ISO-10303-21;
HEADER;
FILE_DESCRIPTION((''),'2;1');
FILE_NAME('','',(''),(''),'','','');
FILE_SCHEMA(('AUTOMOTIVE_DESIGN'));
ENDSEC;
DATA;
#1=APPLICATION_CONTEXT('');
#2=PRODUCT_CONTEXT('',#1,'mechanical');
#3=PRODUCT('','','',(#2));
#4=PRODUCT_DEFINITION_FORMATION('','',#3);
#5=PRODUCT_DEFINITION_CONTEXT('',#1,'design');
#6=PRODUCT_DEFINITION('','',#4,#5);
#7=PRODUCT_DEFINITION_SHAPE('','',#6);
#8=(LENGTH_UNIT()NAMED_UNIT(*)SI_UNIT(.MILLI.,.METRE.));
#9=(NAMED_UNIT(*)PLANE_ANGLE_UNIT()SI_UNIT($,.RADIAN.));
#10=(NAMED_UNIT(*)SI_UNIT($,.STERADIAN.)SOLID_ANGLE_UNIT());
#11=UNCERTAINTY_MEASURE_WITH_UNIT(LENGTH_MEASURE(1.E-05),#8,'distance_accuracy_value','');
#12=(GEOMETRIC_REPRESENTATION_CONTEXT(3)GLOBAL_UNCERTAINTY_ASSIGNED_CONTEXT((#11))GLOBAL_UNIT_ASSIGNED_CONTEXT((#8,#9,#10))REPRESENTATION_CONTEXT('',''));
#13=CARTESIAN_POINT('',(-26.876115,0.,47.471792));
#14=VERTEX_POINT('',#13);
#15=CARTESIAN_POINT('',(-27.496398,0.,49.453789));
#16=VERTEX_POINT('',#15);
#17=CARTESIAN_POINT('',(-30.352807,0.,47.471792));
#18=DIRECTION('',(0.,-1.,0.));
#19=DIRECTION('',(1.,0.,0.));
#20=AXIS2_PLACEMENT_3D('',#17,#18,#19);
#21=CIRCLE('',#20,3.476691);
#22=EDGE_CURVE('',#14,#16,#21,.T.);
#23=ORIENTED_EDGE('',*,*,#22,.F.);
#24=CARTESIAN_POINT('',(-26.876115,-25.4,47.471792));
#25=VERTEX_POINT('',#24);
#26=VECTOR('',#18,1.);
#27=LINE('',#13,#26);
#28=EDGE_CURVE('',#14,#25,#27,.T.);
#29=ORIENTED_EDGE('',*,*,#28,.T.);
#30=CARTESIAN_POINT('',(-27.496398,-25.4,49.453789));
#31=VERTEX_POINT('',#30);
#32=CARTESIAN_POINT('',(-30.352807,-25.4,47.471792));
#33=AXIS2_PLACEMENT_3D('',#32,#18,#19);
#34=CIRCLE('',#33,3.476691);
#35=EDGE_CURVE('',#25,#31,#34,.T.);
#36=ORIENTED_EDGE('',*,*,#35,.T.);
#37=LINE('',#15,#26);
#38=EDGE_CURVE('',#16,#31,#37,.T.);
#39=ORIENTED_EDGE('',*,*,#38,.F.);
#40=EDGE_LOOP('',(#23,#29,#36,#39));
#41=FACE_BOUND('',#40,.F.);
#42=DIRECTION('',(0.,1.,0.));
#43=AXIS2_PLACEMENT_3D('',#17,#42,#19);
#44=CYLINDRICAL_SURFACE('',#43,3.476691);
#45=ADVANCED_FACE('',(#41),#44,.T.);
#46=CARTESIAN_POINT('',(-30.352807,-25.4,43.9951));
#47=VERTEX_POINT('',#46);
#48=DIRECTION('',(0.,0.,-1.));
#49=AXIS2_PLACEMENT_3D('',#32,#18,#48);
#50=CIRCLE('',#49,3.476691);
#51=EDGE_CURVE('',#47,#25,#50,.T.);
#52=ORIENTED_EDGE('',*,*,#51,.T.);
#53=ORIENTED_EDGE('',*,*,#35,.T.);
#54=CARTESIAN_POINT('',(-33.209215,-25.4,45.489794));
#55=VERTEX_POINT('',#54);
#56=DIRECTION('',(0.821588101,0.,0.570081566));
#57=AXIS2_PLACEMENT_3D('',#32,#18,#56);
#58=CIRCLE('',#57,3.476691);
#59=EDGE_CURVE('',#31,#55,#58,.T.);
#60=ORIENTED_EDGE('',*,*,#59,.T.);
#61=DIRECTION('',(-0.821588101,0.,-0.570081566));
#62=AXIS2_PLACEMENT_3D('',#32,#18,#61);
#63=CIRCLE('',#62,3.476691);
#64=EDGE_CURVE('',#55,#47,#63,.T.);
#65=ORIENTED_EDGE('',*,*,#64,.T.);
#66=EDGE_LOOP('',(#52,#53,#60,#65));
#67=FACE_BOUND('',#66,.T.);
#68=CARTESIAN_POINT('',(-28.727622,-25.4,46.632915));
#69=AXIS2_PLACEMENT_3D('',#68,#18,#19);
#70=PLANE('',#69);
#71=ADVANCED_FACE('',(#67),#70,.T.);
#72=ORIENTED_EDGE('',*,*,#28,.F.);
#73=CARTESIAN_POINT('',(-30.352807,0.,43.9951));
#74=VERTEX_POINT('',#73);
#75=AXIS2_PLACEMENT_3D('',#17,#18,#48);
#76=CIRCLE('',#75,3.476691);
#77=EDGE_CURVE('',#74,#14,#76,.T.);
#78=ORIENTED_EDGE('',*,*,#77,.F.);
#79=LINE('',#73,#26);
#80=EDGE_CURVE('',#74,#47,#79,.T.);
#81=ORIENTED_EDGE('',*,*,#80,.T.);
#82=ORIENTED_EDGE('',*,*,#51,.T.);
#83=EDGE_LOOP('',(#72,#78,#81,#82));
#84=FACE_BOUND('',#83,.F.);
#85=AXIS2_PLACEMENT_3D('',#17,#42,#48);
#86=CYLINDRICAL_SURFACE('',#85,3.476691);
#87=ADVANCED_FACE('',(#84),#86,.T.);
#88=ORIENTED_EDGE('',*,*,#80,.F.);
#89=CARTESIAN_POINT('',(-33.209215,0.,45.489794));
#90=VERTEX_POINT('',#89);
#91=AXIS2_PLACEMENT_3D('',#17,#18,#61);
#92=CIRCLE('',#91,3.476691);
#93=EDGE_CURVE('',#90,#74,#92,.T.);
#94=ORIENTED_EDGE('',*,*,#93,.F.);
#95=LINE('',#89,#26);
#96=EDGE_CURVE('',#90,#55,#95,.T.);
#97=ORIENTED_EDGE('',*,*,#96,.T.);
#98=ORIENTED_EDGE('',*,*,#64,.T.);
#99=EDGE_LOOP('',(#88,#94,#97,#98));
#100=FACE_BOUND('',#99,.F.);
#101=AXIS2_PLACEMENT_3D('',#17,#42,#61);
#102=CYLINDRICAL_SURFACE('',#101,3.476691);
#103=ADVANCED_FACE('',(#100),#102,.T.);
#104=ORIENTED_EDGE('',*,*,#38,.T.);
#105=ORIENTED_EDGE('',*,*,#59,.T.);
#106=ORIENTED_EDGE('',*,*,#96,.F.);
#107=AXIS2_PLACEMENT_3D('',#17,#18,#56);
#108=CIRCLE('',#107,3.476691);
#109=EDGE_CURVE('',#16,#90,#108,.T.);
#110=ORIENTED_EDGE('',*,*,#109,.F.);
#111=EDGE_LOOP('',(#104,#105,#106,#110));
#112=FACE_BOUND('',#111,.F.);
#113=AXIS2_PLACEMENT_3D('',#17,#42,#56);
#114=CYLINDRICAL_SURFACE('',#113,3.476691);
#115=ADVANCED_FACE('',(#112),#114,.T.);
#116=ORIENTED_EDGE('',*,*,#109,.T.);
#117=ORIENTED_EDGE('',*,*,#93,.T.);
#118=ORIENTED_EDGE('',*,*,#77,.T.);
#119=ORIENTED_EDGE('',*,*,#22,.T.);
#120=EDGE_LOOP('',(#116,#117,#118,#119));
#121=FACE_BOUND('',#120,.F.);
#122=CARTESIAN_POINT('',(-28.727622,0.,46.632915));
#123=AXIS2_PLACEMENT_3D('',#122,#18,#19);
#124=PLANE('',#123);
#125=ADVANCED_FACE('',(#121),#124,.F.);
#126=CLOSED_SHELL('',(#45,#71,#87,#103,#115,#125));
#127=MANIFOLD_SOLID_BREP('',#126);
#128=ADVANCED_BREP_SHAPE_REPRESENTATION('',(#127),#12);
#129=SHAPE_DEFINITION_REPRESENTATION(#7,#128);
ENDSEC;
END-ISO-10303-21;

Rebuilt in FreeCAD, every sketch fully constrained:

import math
import FreeCAD as App
import Part
import Sketcher

V = App.Vector
Q = App.Units.Quantity

doc = App.newDocument("Part")
body = doc.addObject("PartDesign::Body", "Body")

# Sketch on XZ plane
sketch1 = body.newObject("Sketcher::SketchObject", "Sketch")
sketch1.AttachmentSupport = (doc.getObject("XZ_Plane"), [""])
sketch1.MapMode = "FlatFace"
sketch1.addGeometry(Part.ArcOfCircle(Part.Circle(V(-30.4, 47.5, 0), V(0, 0, 1), 3.5), math.radians(-90), math.radians(0)), False)
sketch1.addGeometry(Part.ArcOfCircle(Part.Circle(V(-30.4, 47.5, 0), V(0, 0, 1), 3.5), math.radians(0), math.radians(35)), False)
sketch1.addGeometry(Part.ArcOfCircle(Part.Circle(V(-30.4, 47.5, 0), V(0, 0, 1), 3.5), math.radians(35), math.radians(215)), False)
sketch1.addGeometry(Part.ArcOfCircle(Part.Circle(V(-30.4, 47.5, 0), V(0, 0, 1), 3.5), math.radians(-145), math.radians(-90)), False)
sketch1.addConstraint(Sketcher.Constraint("Tangent", 0, 2, 1, 1))
sketch1.addConstraint(Sketcher.Constraint("Tangent", 1, 2, 2, 1))
sketch1.addConstraint(Sketcher.Constraint("Tangent", 2, 2, 3, 1))
sketch1.addConstraint(Sketcher.Constraint("Tangent", 3, 2, 0, 1))
sketch1.addConstraint(Sketcher.Constraint("Equal", 0, 1))
sketch1.addConstraint(Sketcher.Constraint("Horizontal", 3, 3, 0, 2))
sketch1.addConstraint(Sketcher.Constraint("Vertical", 2, 3, 3, 2))
sketch1.addConstraint(Sketcher.Constraint("Radius", 0, Q("3.476691 mm")))
sketch1.addConstraint(Sketcher.Constraint("DistanceX", 1, 2, -1, 1, Q("27.496398 mm")))
sketch1.addConstraint(Sketcher.Constraint("DistanceY", -1, 1, 3, 2, Q("43.9951 mm")))
sketch1.addConstraint(Sketcher.Constraint("DistanceX", 2, 2, 0, 2, Q("6.3331 mm")))
sketch1.addConstraint(Sketcher.Constraint("DistanceY", -1, 1, 1, 2, Q("49.453789 mm")))
pad1 = body.newObject("PartDesign::Pad", "Pad")
pad1.Profile = sketch1
pad1.Length = Q("1 in")

doc.recompute()
